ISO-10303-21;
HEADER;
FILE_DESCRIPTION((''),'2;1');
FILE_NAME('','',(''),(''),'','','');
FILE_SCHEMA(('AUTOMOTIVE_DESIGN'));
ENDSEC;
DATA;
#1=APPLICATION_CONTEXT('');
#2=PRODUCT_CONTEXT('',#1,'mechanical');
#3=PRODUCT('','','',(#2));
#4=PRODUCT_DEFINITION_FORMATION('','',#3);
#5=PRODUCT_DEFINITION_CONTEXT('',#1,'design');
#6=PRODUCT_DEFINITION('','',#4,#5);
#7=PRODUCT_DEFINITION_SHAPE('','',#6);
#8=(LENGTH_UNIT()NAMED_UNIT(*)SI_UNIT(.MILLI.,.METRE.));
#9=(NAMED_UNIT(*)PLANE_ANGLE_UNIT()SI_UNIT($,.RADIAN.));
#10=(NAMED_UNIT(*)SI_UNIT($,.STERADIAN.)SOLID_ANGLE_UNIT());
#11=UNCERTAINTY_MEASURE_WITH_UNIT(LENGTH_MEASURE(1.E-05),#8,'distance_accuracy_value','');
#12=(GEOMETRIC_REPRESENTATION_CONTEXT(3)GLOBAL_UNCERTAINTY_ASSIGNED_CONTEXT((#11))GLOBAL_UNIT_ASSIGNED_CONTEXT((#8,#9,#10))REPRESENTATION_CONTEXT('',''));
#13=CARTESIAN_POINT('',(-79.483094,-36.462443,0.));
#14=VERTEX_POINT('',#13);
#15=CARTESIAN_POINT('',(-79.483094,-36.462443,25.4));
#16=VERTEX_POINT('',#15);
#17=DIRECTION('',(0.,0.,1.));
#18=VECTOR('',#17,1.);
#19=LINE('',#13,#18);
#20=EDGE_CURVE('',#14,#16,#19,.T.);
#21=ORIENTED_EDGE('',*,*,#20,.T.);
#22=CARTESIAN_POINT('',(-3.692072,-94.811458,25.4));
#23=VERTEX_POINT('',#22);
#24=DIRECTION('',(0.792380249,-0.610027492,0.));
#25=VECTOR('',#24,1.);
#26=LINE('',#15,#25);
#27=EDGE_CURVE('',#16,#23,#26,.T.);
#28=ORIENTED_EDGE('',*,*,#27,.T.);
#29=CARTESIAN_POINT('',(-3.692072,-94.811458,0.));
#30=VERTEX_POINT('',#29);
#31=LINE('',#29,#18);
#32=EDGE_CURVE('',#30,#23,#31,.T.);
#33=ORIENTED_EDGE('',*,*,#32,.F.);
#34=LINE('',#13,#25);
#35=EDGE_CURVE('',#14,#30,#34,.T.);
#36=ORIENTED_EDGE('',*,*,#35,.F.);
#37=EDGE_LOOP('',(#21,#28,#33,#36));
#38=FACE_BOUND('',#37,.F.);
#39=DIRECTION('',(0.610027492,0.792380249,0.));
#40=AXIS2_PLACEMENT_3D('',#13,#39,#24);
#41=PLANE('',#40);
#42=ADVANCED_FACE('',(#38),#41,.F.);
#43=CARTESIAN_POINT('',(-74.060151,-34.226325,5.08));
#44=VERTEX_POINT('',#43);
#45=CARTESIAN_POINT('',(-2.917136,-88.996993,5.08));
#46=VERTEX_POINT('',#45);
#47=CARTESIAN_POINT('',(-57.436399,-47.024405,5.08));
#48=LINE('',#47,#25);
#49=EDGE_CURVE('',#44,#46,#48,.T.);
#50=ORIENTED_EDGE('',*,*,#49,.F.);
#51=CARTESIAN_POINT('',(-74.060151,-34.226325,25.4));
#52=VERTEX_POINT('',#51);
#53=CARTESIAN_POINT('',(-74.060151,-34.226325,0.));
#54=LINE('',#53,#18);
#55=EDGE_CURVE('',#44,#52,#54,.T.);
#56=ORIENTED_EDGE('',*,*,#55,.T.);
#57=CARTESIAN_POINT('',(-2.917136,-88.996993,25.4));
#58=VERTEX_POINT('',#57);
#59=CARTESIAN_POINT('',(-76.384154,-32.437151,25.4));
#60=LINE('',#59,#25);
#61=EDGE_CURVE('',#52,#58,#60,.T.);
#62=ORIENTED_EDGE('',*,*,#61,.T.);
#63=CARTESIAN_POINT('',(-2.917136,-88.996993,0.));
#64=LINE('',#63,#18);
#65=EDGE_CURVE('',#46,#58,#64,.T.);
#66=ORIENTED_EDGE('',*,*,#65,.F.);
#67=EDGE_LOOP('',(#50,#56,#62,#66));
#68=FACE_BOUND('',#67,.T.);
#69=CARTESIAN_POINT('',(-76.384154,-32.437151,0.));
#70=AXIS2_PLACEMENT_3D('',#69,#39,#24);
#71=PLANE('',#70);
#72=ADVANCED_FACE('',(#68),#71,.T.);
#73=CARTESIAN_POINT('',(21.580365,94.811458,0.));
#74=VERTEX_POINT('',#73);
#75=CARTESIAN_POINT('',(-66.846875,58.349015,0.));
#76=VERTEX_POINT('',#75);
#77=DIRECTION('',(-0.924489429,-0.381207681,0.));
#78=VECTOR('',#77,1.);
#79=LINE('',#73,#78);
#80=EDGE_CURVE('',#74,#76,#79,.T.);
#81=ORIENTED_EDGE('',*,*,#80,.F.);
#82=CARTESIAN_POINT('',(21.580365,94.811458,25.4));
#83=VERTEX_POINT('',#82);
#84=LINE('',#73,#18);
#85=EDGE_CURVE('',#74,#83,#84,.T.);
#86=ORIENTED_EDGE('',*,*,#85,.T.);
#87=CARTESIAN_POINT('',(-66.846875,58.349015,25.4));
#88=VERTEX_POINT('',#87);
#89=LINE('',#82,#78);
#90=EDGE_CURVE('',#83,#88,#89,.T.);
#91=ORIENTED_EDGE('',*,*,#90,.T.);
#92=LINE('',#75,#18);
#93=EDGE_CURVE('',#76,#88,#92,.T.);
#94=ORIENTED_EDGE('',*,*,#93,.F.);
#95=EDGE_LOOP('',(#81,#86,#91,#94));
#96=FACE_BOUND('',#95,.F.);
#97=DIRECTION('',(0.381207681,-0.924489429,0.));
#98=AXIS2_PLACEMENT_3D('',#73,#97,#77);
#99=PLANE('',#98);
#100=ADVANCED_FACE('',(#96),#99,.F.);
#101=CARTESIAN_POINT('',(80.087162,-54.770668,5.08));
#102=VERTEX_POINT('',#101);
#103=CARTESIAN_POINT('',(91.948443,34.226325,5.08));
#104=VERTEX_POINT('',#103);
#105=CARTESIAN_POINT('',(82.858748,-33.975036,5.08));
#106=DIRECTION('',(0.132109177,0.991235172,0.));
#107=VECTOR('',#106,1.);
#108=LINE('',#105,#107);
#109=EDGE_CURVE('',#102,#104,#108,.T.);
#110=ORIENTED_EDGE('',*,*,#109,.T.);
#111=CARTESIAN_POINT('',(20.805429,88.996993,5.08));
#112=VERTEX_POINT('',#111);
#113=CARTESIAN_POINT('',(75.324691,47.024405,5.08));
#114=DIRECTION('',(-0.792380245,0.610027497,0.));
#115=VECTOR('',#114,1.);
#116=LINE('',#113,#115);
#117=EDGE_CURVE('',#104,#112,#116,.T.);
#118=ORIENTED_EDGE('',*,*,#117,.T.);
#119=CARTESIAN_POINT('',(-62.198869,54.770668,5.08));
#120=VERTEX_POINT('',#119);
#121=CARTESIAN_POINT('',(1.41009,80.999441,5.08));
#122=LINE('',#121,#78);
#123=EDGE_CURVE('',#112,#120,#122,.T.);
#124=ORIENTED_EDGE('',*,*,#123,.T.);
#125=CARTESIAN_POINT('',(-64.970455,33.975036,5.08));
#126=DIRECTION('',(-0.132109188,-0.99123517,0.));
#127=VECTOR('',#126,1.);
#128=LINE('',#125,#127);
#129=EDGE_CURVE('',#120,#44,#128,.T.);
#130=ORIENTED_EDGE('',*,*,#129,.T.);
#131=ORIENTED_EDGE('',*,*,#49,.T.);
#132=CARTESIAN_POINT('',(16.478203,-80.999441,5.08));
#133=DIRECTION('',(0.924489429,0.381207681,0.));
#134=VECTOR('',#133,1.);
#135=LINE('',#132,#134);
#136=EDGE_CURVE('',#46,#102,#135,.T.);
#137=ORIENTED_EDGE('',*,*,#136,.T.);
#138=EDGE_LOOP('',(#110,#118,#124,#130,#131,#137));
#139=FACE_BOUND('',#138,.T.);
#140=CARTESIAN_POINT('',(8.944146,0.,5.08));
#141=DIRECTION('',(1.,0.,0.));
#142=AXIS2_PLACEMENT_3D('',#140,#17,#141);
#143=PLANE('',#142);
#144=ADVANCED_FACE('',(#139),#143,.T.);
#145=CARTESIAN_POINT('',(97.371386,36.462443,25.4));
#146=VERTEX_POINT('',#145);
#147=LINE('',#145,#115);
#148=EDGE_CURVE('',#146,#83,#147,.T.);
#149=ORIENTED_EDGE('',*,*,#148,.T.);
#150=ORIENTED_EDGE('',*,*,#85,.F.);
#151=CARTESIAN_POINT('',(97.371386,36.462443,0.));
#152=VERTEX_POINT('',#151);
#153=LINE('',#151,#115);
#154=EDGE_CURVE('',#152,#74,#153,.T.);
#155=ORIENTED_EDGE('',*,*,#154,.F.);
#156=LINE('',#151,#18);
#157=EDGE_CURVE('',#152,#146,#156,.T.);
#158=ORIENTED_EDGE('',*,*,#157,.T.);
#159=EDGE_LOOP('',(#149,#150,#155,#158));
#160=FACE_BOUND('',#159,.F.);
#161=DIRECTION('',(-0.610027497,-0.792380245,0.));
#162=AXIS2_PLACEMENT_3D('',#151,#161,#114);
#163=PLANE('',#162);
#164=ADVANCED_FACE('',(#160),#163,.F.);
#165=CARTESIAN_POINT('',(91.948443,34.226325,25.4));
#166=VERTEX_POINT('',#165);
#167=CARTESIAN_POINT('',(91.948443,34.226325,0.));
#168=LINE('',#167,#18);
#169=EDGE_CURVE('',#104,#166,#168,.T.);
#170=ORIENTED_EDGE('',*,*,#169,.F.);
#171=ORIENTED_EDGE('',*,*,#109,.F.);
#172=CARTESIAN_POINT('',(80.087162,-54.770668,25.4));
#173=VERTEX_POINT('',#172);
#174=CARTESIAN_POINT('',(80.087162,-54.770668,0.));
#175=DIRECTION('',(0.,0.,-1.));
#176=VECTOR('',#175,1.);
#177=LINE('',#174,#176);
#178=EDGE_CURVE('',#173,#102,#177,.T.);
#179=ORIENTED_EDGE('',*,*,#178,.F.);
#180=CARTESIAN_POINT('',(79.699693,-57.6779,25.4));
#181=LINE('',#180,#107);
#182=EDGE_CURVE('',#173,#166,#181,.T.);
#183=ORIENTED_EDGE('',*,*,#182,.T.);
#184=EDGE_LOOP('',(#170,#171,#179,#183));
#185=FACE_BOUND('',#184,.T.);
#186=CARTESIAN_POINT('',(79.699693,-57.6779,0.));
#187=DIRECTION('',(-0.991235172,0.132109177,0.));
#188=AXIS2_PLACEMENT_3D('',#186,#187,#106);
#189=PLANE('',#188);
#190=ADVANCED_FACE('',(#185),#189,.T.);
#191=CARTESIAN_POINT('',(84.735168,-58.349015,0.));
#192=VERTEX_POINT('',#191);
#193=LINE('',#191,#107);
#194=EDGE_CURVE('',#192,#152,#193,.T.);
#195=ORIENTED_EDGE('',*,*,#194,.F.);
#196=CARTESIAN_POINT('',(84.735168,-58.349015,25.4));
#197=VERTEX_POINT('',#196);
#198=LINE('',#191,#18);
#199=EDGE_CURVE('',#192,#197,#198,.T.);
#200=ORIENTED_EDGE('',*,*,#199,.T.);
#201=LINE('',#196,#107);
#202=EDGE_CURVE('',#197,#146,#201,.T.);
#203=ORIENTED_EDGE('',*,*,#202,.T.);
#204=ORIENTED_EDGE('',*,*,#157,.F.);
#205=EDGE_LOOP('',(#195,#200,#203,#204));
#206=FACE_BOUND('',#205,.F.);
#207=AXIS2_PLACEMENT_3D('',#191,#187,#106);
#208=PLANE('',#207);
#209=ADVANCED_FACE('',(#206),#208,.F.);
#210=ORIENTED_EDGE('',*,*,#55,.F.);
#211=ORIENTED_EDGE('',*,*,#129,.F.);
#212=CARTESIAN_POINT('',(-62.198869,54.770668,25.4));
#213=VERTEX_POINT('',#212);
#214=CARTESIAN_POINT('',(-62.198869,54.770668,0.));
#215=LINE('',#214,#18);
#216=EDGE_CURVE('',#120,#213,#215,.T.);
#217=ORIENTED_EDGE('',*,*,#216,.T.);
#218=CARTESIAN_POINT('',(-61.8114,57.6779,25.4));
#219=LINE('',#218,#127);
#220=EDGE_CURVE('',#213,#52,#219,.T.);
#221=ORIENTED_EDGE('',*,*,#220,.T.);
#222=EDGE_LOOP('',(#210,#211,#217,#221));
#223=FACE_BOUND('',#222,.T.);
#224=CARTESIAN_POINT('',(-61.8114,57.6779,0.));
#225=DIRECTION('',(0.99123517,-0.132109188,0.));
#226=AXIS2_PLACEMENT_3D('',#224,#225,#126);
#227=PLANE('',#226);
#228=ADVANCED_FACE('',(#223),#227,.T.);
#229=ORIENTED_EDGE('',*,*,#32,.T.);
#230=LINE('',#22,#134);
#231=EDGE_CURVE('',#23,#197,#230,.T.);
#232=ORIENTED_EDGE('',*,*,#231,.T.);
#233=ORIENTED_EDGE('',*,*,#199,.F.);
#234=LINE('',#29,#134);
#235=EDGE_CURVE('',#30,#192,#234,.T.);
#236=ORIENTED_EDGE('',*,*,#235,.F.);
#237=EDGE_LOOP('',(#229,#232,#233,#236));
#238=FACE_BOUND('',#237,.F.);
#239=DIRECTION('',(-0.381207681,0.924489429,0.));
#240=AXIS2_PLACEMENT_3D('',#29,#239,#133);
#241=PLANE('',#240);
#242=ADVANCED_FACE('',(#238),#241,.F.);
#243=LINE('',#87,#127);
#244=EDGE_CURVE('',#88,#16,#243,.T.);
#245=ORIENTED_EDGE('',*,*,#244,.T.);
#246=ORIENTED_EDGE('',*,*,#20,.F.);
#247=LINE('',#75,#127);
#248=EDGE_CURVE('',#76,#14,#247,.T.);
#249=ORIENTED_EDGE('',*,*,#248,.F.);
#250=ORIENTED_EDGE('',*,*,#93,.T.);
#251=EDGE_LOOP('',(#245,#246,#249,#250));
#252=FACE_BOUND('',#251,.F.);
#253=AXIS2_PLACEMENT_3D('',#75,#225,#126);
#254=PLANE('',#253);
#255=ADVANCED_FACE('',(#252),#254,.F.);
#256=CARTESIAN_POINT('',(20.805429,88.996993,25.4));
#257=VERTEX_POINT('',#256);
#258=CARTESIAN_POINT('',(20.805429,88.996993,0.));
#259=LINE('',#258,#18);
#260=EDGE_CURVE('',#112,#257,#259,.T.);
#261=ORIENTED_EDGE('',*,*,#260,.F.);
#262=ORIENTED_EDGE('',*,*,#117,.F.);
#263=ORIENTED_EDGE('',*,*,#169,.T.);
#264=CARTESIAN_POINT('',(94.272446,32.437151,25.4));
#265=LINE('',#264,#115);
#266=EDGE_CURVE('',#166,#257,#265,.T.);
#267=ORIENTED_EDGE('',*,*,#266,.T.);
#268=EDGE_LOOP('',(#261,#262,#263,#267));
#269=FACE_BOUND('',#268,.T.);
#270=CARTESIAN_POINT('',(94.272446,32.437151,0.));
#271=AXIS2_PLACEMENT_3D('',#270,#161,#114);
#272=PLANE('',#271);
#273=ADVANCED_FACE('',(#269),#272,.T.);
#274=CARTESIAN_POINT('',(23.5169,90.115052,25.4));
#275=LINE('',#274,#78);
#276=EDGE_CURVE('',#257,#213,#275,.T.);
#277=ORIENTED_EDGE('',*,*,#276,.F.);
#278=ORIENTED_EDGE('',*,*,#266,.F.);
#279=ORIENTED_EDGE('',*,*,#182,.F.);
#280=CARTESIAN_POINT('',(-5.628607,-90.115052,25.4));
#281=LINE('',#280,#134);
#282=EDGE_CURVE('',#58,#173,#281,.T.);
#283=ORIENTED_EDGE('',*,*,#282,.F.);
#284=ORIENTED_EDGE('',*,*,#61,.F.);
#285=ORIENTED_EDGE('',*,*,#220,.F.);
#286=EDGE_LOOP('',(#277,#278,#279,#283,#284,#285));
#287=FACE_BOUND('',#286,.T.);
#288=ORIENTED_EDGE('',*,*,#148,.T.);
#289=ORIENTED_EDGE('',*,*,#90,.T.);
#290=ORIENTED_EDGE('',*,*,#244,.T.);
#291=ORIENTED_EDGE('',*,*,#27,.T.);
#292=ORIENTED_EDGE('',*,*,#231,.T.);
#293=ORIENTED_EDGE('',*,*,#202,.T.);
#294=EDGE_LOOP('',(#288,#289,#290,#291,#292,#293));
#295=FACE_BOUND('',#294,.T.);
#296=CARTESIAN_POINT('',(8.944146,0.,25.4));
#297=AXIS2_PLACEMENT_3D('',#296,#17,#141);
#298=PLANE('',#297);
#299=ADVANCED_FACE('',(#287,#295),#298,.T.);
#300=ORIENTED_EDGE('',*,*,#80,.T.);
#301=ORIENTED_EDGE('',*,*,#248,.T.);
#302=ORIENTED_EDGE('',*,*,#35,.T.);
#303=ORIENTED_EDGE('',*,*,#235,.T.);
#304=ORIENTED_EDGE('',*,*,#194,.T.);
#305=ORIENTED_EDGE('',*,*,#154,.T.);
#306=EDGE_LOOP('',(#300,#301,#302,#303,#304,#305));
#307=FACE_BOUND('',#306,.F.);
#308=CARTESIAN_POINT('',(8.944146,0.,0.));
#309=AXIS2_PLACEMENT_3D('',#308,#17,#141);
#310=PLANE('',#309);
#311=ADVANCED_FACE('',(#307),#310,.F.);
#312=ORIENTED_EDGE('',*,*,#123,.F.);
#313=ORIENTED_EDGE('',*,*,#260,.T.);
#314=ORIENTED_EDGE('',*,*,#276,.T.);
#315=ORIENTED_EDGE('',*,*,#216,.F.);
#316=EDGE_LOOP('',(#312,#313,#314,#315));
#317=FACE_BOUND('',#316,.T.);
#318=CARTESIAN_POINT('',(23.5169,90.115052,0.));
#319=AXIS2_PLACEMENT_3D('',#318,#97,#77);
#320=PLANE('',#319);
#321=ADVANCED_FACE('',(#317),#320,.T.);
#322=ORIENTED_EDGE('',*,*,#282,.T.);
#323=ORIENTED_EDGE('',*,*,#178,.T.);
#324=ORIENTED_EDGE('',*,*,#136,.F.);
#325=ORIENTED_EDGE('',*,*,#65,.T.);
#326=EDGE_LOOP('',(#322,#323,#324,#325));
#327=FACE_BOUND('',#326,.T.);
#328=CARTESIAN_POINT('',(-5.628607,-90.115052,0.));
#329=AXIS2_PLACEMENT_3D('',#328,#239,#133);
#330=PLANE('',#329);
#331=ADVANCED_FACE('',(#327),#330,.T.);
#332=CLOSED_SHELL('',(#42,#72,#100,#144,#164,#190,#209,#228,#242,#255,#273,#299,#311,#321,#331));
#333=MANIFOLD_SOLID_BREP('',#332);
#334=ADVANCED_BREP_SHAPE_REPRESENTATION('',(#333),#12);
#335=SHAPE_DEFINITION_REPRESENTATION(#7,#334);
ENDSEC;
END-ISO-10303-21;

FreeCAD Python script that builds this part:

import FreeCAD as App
import Part
import Sketcher
Q = App.Units.Quantity


def faces_at(feature, points):
    """Names of the faces that lie closest to the given points."""
    faces = feature.Shape.Faces
    near = lambda p: min(range(len(faces)), key=lambda i: faces[i].distToShape(Part.Vertex(*p))[0])
    return sorted({f"Face{near(p) + 1}" for p in points})

doc = App.newDocument("Part")
body = doc.addObject("PartDesign::Body", "Body")

sketch1 = body.newObject("Sketcher::SketchObject", "Sketch")
sketch1.AttachmentSupport = (doc.getObject("XY_Plane"), [""])
sketch1.MapMode = "FlatFace"
sketch1.addGeometry([
    Part.LineSegment(App.Vector(84.735168, -58.349015, 0), App.Vector(97.371386, 36.462443, 0)),
    Part.LineSegment(App.Vector(97.371386, 36.462443, 0), App.Vector(21.580365, 94.811458, 0)),
    Part.LineSegment(App.Vector(21.580365, 94.811458, 0), App.Vector(-66.846875, 58.349015, 0)),
    Part.LineSegment(App.Vector(-66.846875, 58.349015, 0), App.Vector(-79.483094, -36.462443, 0)),
    Part.LineSegment(App.Vector(-79.483094, -36.462443, 0), App.Vector(-3.692072, -94.811458, 0)),
    Part.LineSegment(App.Vector(-3.692072, -94.811458, 0), App.Vector(84.735168, -58.349015, 0)),
], False)
sketch1.addConstraint([
    Sketcher.Constraint("Coincident", 0, 2, 1, 1),
    Sketcher.Constraint("Coincident", 1, 2, 2, 1),
    Sketcher.Constraint("Coincident", 2, 2, 3, 1),
    Sketcher.Constraint("Coincident", 3, 2, 4, 1),
    Sketcher.Constraint("Coincident", 4, 2, 5, 1),
    Sketcher.Constraint("Coincident", 5, 2, 0, 1),
    Sketcher.Constraint("DistanceY", 3, 2, 1, 2, 131.273901),
    Sketcher.Constraint("DistanceY", 4, 2, 0, 2, 131.273901),
    Sketcher.Constraint("Distance", 1, 95.649811),
    Sketcher.Constraint("Distance", 2, 95.649812),
    Sketcher.Constraint("Distance", 5, 95.649812),
    Sketcher.Constraint("DistanceY", -1, 1, 1, 2, 94.811458),
    Sketcher.Constraint("DistanceX", 4, 2, -1, 1, 3.692072),
    Sketcher.Constraint("DistanceY", 4, 2, -1, 1, 94.811458),
    Sketcher.Constraint("DistanceX", -1, 1, 5, 2, 84.735168),
    Sketcher.Constraint("DistanceX", 2, 2, 1, 2, 88.42724),
    Sketcher.Constraint("DistanceX", 3, 2, 2, 2, 12.636219),
    Sketcher.Constraint("DistanceX", 3, 2, 4, 2, 75.791022),
])
pad1 = body.newObject("PartDesign::Pad", "Pad")
pad1.Profile = sketch1
pad1.Length = Q("1 in")
doc.recompute()

thickness = body.newObject("PartDesign::Thickness", "Thickness")
thickness.Base = (pad1, faces_at(pad1, [(8.944, 0, 25.4)]))
thickness.Value = Q("0.2 in")
thickness.Reversed = True
thickness.Join = "Arc"

doc.recompute()
